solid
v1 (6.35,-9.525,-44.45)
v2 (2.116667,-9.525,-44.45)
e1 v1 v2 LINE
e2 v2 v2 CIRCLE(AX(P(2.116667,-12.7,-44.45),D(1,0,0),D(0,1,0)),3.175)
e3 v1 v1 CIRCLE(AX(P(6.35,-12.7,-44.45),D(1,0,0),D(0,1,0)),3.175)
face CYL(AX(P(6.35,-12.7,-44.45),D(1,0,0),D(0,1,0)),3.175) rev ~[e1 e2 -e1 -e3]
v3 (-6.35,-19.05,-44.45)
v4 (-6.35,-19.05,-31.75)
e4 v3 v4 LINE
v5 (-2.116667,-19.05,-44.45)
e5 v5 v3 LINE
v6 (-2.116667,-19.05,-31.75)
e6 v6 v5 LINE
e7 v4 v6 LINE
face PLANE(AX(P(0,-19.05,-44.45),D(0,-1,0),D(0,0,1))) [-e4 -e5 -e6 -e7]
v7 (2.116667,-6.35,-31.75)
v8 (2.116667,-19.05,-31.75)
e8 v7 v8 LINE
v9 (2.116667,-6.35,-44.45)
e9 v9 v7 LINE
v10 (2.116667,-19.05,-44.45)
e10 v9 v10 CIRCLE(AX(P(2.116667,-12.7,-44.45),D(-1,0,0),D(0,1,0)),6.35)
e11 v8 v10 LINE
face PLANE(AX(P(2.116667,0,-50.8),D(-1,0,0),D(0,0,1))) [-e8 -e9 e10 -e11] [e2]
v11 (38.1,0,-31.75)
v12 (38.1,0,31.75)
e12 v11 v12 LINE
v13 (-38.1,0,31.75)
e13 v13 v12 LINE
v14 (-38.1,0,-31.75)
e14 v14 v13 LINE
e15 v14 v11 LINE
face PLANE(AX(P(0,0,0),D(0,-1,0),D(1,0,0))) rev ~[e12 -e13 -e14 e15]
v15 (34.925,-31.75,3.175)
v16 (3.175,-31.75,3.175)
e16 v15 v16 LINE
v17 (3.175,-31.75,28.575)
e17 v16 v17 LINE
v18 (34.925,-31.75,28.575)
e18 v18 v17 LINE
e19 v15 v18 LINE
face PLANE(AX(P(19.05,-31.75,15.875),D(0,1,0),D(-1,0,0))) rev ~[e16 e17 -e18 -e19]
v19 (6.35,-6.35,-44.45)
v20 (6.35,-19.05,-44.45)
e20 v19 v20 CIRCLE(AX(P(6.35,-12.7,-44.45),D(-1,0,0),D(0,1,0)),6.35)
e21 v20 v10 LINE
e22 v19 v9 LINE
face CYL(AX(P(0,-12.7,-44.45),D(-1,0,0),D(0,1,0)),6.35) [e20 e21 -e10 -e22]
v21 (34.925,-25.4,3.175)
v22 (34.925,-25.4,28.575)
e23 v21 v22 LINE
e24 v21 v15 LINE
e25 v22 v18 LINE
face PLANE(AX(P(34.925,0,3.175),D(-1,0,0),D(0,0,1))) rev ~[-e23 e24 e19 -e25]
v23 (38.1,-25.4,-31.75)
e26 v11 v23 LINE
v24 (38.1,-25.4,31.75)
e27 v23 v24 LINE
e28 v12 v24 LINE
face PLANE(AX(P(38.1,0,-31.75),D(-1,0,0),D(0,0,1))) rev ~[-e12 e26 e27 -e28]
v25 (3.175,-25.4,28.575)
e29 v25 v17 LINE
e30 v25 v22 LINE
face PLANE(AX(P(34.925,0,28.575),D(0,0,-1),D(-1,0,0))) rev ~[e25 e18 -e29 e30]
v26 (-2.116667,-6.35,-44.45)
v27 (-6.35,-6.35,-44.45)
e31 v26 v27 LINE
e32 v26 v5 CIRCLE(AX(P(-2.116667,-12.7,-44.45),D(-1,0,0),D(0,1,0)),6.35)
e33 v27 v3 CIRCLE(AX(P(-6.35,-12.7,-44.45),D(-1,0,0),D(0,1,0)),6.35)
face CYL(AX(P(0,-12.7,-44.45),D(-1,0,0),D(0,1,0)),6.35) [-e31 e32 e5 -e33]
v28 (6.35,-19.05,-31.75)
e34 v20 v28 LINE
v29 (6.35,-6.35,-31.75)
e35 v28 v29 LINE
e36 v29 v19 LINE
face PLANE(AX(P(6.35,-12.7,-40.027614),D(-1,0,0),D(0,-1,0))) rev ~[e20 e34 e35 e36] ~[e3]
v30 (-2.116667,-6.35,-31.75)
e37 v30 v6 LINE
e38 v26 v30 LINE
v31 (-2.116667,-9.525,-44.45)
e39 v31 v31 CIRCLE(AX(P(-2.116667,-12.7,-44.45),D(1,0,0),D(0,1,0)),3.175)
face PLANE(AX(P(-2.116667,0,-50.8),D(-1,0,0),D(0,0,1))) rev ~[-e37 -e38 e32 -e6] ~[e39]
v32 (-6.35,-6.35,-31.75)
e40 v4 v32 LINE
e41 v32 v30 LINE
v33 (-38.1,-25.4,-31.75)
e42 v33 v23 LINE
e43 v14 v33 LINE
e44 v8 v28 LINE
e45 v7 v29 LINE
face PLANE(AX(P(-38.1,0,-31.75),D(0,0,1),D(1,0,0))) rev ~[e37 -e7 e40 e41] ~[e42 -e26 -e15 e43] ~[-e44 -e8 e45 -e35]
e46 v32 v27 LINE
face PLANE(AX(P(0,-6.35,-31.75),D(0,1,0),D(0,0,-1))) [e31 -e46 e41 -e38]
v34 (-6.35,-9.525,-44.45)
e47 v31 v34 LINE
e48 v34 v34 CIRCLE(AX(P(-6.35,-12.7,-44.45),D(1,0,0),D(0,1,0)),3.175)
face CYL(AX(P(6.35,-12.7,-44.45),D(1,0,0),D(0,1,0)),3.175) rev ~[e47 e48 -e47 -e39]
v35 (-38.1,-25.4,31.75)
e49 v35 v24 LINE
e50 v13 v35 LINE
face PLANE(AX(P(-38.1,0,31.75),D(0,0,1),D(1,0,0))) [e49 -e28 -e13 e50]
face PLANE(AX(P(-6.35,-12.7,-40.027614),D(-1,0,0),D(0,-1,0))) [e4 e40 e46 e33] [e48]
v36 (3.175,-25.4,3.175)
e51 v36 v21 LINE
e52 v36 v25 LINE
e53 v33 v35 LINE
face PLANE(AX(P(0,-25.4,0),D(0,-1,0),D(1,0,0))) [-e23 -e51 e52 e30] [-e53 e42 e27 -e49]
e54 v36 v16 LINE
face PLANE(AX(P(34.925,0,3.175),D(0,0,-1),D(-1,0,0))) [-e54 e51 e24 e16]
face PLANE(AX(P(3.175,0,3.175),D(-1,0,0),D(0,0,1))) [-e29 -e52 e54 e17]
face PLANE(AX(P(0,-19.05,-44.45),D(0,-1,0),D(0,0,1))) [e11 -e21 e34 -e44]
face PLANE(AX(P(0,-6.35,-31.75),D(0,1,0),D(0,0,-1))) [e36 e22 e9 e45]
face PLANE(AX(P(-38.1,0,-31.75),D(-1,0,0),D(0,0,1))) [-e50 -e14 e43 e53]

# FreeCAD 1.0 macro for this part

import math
import FreeCAD as App
import Part
import Sketcher
from FreeCAD import Vector
Q = App.Units.Quantity


def add_polygon(sketch, points):
    """Adds a closed chain of lines whose ends are joined by coincident constraints."""
    first, n = sketch.GeometryCount, len(points)
    for a, b in zip(points, points[1:] + points[:1]):
        sketch.addGeometry(Part.LineSegment(App.Vector(*a, 0), App.Vector(*b, 0)), False)
    for i in range(n):
        sketch.addConstraint(Sketcher.Constraint("Coincident", first + i, 2, first + (i + 1) % n, 1))

doc = App.newDocument("Part")
body = doc.addObject("PartDesign::Body", "Body")

# Sketch on XZ plane
sketch1 = body.newObject("Sketcher::SketchObject", "Sketch")
sketch1.AttachmentSupport = (doc.getObject("XZ_Plane"), [""])
sketch1.MapMode = "FlatFace"
add_polygon(sketch1, [(-38.1, 31.75), (-38.1, -31.75), (38.1, -31.75), (38.1, 31.75)])  # lines 0-3
add_polygon(sketch1, [(34.925, 3.175), (3.175, 3.175), (3.175, 28.575), (34.925, 28.575)])  # lines 4-7
sketch1.addConstraint(Sketcher.Constraint("Vertical", 0))
sketch1.addConstraint(Sketcher.Constraint("Horizontal", 1))
sketch1.addConstraint(Sketcher.Constraint("Vertical", 2))
sketch1.addConstraint(Sketcher.Constraint("Horizontal", 3))
sketch1.addConstraint(Sketcher.Constraint("Horizontal", 4))
sketch1.addConstraint(Sketcher.Constraint("Vertical", 5))
sketch1.addConstraint(Sketcher.Constraint("Horizontal", 6))
sketch1.addConstraint(Sketcher.Constraint("Vertical", 7))
sketch1.addConstraint(Sketcher.Constraint("Symmetric", 0, 2, 2, 2, -1, 1))
sketch1.addConstraint(Sketcher.Constraint("DistanceX", 1, 1, 1, 2, Q("3 in")))
sketch1.addConstraint(Sketcher.Constraint("DistanceY", 5, 1, 5, 2, Q("1 in")))
sketch1.addConstraint(Sketcher.Constraint("DistanceY", 0, 2, 0, 1, Q("2.5 in")))
sketch1.addConstraint(Sketcher.Constraint("DistanceX", 4, 2, 4, 1, Q("1.25 in")))
sketch1.addConstraint(Sketcher.Constraint("DistanceX", -1, 1, 4, 2, Q("0.125 in")))
sketch1.addConstraint(Sketcher.Constraint("DistanceY", -1, 1, 4, 2, Q("0.125 in")))
pad1 = body.newObject("PartDesign::Pad", "Pad")
pad1.Profile = sketch1
pad1.Length = Q("1 in")

# Sketch on XZ plane
sketch2 = body.newObject("Sketcher::SketchObject", "Sketch001")
sketch2.AttachmentSupport = (doc.getObject("XZ_Plane"), [""])
sketch2.MapMode = "FlatFace"
add_polygon(sketch2, [(34.925, 28.575), (34.925, 3.175), (3.175, 3.175), (3.175, 28.575)])  # lines 0-3
sketch2.addConstraint(Sketcher.Constraint("Vertical", 0))
sketch2.addConstraint(Sketcher.Constraint("Horizontal", 1))
sketch2.addConstraint(Sketcher.Constraint("Vertical", 2))
sketch2.addConstraint(Sketcher.Constraint("Horizontal", 3))
sketch2.addConstraint(Sketcher.Constraint("DistanceY", 0, 2, 0, 1, Q("1 in")))
sketch2.addConstraint(Sketcher.Constraint("DistanceX", 1, 2, 1, 1, Q("1.25 in")))
sketch2.addConstraint(Sketcher.Constraint("DistanceX", -1, 1, 0, 2, Q("1.375 in")))
sketch2.addConstraint(Sketcher.Constraint("DistanceY", -1, 1, 0, 2, Q("0.125 in")))
pad2 = body.newObject("PartDesign::Pad", "Pad001")
pad2.Profile = sketch2
pad2.Length = Q("1.25 in")

# Sketch on YZ plane
sketch3 = body.newObject("Sketcher::SketchObject", "Sketch002")
sketch3.AttachmentSupport = (doc.getObject("YZ_Plane"), [""])
sketch3.MapMode = "FlatFace"
sketch3.addGeometry(Part.LineSegment(Vector(-6.35, -31.75, 0), Vector(-6.35, -44.45, 0)), False)
sketch3.addGeometry(Part.ArcOfCircle(Part.Circle(Vector(-12.7, -44.45, 0), Vector(0, 0, 1), 6.35), math.radians(180), math.radians(360)), False)
sketch3.addGeometry(Part.LineSegment(Vector(-19.05, -44.45, 0), Vector(-19.05, -31.75, 0)), False)
sketch3.addGeometry(Part.LineSegment(Vector(-19.05, -31.75, 0), Vector(-6.35, -31.75, 0)), False)
sketch3.addConstraint(Sketcher.Constraint("Tangent", 0, 2, 1, 2))
sketch3.addConstraint(Sketcher.Constraint("Tangent", 1, 1, 2, 1))
sketch3.addConstraint(Sketcher.Constraint("Coincident", 2, 2, 3, 1))
sketch3.addConstraint(Sketcher.Constraint("Coincident", 3, 2, 0, 1))
sketch3.addConstraint(Sketcher.Constraint("Vertical", 0))
sketch3.addConstraint(Sketcher.Constraint("Vertical", 2))
sketch3.addConstraint(Sketcher.Constraint("Horizontal", 3))
sketch3.addConstraint(Sketcher.Constraint("Equal", 3, 0))
sketch3.addConstraint(Sketcher.Constraint("Radius", 1, Q("0.25 in")))
sketch3.addConstraint(Sketcher.Constraint("DistanceX", 1, 3, -1, 1, Q("0.5 in")))
sketch3.addConstraint(Sketcher.Constraint("DistanceY", 1, 3, -1, 1, Q("1.75 in")))
pad3 = body.newObject("PartDesign::Pad", "Pad002")
pad3.Profile = sketch3
pad3.Length = Q("0.5 in")
pad3.Midplane = True

# Sketch on XZ plane
sketch4 = body.newObject("Sketcher::SketchObject", "Sketch003")
sketch4.AttachmentSupport = (doc.getObject("XZ_Plane"), [""])
sketch4.MapMode = "FlatFace"
add_polygon(sketch4, [(-2.116667, -31.75), (-2.116667, -50.8), (2.116667, -50.8), (2.116667, -31.75)])  # lines 0-3
sketch4.addConstraint(Sketcher.Constraint("Vertical", 0))
sketch4.addConstraint(Sketcher.Constraint("Horizontal", 1))
sketch4.addConstraint(Sketcher.Constraint("Vertical", 2))
sketch4.addConstraint(Sketcher.Constraint("Horizontal", 3))
sketch4.addConstraint(Sketcher.Constraint("DistanceY", 0, 2, -1, 1, Q("2 in")))
sketch4.addConstraint(Sketcher.Constraint("DistanceY", 0, 2, 0, 1, Q("0.75 in")))
sketch4.addConstraint(Sketcher.Constraint("DistanceX", 1, 1, 1, 2, Q("4.233333 mm")))
sketch4.addConstraint(Sketcher.Constraint("DistanceX", 0, 2, -1, 1, Q("2.116667 mm")))
pocket1 = body.newObject("PartDesign::Pocket", "Pocket")
pocket1.Profile = sketch4
pocket1.Type = "ThroughAll"
pocket1.Reversed = True

# Sketch on YZ plane
sketch5 = body.newObject("Sketcher::SketchObject", "Sketch004")
sketch5.AttachmentSupport = (doc.getObject("YZ_Plane"), [""])
sketch5.MapMode = "FlatFace"
sketch5.AttachmentOffset = App.Placement(Vector(0, 0, 0.25 * 25.4), App.Rotation())
sketch5.addGeometry(Part.Circle(Vector(-12.7, -44.45, 0), Vector(0, 0, 1), 3.175), False)
sketch5.addConstraint(Sketcher.Constraint("Diameter", 0, Q("0.25 in")))
sketch5.addConstraint(Sketcher.Constraint("DistanceX", 0, 3, -1, 1, Q("0.5 in")))
sketch5.addConstraint(Sketcher.Constraint("DistanceY", 0, 3, -1, 1, Q("1.75 in")))
pocket2 = body.newObject("PartDesign::Pocket", "Pocket001")
pocket2.Profile = sketch5
pocket2.Type = "ThroughAll"

doc.recompute()
